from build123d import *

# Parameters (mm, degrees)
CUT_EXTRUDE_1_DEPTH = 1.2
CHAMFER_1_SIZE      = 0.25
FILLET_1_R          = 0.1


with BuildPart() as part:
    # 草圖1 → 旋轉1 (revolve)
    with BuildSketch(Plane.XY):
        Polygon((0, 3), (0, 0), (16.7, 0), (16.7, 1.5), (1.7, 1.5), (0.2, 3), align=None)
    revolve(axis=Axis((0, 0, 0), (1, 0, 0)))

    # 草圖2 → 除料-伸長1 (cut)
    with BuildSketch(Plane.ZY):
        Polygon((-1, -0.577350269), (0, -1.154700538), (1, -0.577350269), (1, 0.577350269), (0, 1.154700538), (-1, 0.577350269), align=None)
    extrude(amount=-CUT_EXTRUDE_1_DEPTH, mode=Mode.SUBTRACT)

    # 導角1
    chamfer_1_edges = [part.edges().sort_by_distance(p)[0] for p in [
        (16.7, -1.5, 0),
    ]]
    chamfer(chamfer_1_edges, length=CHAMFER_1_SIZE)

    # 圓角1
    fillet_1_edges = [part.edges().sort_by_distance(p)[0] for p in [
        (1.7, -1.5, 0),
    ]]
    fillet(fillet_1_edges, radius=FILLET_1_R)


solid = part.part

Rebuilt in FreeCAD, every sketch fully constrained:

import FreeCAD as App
import Part
import Sketcher

V = App.Vector
Q = App.Units.Quantity


def edges_at(feature, points):
    """Names of the edges that pass closest to the given points."""
    edges = feature.Shape.Edges
    near = lambda p: min(range(len(edges)), key=lambda i: edges[i].distToShape(Part.Vertex(*p))[0])
    return sorted({f"Edge{near(p) + 1}" for p in points})

doc = App.newDocument("Part")
params = doc.addObject("Spreadsheet::Sheet", "Params")
for row, (alias, value) in enumerate([
    ("sketch1_width", "15 mm"),
    ("sketch1_height", "3 mm"),
    ("sketch1_width2", "16.7 mm"),
    ("sketch1_width3", "0.2 mm"),
    ("revolution_angle", "360 deg"),
    ("pocket1_length", "1.2 mm"),
    ("chamfer_size", "0.25 mm"),
    ("fillet_radius", "0.1 mm"),
], start=1):
    params.set(f"A{row}", alias)
    params.set(f"B{row}", "=" + value)
    params.setAlias(f"B{row}", alias)

body = doc.addObject("PartDesign::Body", "Body")

# Sketch on XY plane
sketch1 = doc.addObject("Sketcher::SketchObject", "Sketch")
body.addObject(sketch1)
sketch1.AttachmentSupport = (doc.XY_Plane, [""])
sketch1.MapMode = "FlatFace"
sketch1.addGeometry([
    Part.LineSegment(V(0, 3, 0), V(0, 0, 0)),  # 0
    Part.LineSegment(V(0, 0, 0), V(16.7, 0, 0)),  # 1
    Part.LineSegment(V(16.7, 0, 0), V(16.7, 1.5, 0)),  # 2
    Part.LineSegment(V(16.7, 1.5, 0), V(1.7, 1.5, 0)),  # 3
    Part.LineSegment(V(1.7, 1.5, 0), V(0.2, 3, 0)),  # 4
    Part.LineSegment(V(0.2, 3, 0), V(0, 3, 0)),  # 5
], False)
sketch1.addConstraint([
    Sketcher.Constraint("Coincident", 0, 2, 1, 1),
    Sketcher.Constraint("Coincident", 1, 2, 2, 1),
    Sketcher.Constraint("Coincident", 2, 2, 3, 1),
    Sketcher.Constraint("Coincident", 3, 2, 4, 1),
    Sketcher.Constraint("Coincident", 4, 2, 5, 1),
    Sketcher.Constraint("Coincident", 5, 2, 0, 1),
    Sketcher.Constraint("Vertical", 0),
    Sketcher.Constraint("Horizontal", 1),
    Sketcher.Constraint("Vertical", 2),
    Sketcher.Constraint("Horizontal", 3),
    Sketcher.Constraint("Horizontal", 5),
    Sketcher.Constraint("Coincident", 0, 2, -1, 1),
    Sketcher.Constraint("DistanceX", 3, 2, 3, 1, 15.0),
    Sketcher.Constraint("DistanceY", 0, 2, 0, 1, 3.0),
    Sketcher.Constraint("Angle", 4, Q("135 deg")),
    Sketcher.Constraint("DistanceX", 1, 1, 1, 2, 16.7),
    Sketcher.Constraint("DistanceX", 5, 2, 5, 1, 0.2),
])
sketch1.setExpression("Constraints[12]", "Params.sketch1_width")
sketch1.setExpression("Constraints[13]", "Params.sketch1_height")
sketch1.setExpression("Constraints[15]", "Params.sketch1_width2")
sketch1.setExpression("Constraints[16]", "Params.sketch1_width3")
revolution = doc.addObject("PartDesign::Revolution", "Revolution")
body.addObject(revolution)
revolution.Profile = sketch1
revolution.ReferenceAxis = (sketch1, ["H_Axis"])
revolution.setExpression("Angle", "Params.revolution_angle")

# Sketch on YZ plane
sketch2 = doc.addObject("Sketcher::SketchObject", "Sketch001")
body.addObject(sketch2)
sketch2.AttachmentSupport = (doc.YZ_Plane, [""])
sketch2.MapMode = "FlatFace"
sketch2.addGeometry([
    Part.LineSegment(V(-0.57735, -1, 0), V(-1.154701, 0, 0)),  # 0
    Part.LineSegment(V(-1.154701, 0, 0), V(-0.57735, 1, 0)),  # 1
    Part.LineSegment(V(-0.57735, 1, 0), V(0.57735, 1, 0)),  # 2
    Part.LineSegment(V(0.57735, 1, 0), V(1.154701, 0, 0)),  # 3
    Part.LineSegment(V(1.154701, 0, 0), V(0.57735, -1, 0)),  # 4
    Part.LineSegment(V(0.57735, -1, 0), V(-0.57735, -1, 0)),  # 5
], False)
sketch2.addConstraint([
    Sketcher.Constraint("Coincident", 0, 2, 1, 1),
    Sketcher.Constraint("Coincident", 1, 2, 2, 1),
    Sketcher.Constraint("Coincident", 2, 2, 3, 1),
    Sketcher.Constraint("Coincident", 3, 2, 4, 1),
    Sketcher.Constraint("Coincident", 4, 2, 5, 1),
    Sketcher.Constraint("Coincident", 5, 2, 0, 1),
    Sketcher.Constraint("Horizontal", 2),
    Sketcher.Constraint("Horizontal", 5),
    Sketcher.Constraint("Symmetric", 0, 2, 3, 2, -1, 1),
    Sketcher.Constraint("Symmetric", 1, 2, 4, 2, -1, 1),
    Sketcher.Constraint("PointOnObject", 0, 2, -1),
    Sketcher.Constraint("Parallel", 0, 3),
    Sketcher.Constraint("Vertical", 2, 2, 4, 2),
    Sketcher.Constraint("Angle", 0, Q("120 deg")),
    Sketcher.Constraint("DistanceY", -1, 1, 1, 2, 1.0),
    Sketcher.Constraint("DistanceX", 2, 1, 2, 2, 1.154701),
])
pocket1 = doc.addObject("PartDesign::Pocket", "Pocket")
body.addObject(pocket1)
pocket1.Profile = sketch2
pocket1.setExpression("Length", "Params.pocket1_length")
pocket1.Reversed = True
doc.recompute()

chamfer = doc.addObject("PartDesign::Chamfer", "Chamfer")
body.addObject(chamfer)
chamfer.Base = (pocket1, edges_at(pocket1, [(16.7, -1.5, 0)]))
chamfer.setExpression("Size", "Params.chamfer_size")
doc.recompute()

fillet = doc.addObject("PartDesign::Fillet", "Fillet")
body.addObject(fillet)
fillet.Base = (chamfer, edges_at(chamfer, [(1.7, -1.5, 0)]))
fillet.setExpression("Radius", "Params.fillet_radius")

doc.recompute()
